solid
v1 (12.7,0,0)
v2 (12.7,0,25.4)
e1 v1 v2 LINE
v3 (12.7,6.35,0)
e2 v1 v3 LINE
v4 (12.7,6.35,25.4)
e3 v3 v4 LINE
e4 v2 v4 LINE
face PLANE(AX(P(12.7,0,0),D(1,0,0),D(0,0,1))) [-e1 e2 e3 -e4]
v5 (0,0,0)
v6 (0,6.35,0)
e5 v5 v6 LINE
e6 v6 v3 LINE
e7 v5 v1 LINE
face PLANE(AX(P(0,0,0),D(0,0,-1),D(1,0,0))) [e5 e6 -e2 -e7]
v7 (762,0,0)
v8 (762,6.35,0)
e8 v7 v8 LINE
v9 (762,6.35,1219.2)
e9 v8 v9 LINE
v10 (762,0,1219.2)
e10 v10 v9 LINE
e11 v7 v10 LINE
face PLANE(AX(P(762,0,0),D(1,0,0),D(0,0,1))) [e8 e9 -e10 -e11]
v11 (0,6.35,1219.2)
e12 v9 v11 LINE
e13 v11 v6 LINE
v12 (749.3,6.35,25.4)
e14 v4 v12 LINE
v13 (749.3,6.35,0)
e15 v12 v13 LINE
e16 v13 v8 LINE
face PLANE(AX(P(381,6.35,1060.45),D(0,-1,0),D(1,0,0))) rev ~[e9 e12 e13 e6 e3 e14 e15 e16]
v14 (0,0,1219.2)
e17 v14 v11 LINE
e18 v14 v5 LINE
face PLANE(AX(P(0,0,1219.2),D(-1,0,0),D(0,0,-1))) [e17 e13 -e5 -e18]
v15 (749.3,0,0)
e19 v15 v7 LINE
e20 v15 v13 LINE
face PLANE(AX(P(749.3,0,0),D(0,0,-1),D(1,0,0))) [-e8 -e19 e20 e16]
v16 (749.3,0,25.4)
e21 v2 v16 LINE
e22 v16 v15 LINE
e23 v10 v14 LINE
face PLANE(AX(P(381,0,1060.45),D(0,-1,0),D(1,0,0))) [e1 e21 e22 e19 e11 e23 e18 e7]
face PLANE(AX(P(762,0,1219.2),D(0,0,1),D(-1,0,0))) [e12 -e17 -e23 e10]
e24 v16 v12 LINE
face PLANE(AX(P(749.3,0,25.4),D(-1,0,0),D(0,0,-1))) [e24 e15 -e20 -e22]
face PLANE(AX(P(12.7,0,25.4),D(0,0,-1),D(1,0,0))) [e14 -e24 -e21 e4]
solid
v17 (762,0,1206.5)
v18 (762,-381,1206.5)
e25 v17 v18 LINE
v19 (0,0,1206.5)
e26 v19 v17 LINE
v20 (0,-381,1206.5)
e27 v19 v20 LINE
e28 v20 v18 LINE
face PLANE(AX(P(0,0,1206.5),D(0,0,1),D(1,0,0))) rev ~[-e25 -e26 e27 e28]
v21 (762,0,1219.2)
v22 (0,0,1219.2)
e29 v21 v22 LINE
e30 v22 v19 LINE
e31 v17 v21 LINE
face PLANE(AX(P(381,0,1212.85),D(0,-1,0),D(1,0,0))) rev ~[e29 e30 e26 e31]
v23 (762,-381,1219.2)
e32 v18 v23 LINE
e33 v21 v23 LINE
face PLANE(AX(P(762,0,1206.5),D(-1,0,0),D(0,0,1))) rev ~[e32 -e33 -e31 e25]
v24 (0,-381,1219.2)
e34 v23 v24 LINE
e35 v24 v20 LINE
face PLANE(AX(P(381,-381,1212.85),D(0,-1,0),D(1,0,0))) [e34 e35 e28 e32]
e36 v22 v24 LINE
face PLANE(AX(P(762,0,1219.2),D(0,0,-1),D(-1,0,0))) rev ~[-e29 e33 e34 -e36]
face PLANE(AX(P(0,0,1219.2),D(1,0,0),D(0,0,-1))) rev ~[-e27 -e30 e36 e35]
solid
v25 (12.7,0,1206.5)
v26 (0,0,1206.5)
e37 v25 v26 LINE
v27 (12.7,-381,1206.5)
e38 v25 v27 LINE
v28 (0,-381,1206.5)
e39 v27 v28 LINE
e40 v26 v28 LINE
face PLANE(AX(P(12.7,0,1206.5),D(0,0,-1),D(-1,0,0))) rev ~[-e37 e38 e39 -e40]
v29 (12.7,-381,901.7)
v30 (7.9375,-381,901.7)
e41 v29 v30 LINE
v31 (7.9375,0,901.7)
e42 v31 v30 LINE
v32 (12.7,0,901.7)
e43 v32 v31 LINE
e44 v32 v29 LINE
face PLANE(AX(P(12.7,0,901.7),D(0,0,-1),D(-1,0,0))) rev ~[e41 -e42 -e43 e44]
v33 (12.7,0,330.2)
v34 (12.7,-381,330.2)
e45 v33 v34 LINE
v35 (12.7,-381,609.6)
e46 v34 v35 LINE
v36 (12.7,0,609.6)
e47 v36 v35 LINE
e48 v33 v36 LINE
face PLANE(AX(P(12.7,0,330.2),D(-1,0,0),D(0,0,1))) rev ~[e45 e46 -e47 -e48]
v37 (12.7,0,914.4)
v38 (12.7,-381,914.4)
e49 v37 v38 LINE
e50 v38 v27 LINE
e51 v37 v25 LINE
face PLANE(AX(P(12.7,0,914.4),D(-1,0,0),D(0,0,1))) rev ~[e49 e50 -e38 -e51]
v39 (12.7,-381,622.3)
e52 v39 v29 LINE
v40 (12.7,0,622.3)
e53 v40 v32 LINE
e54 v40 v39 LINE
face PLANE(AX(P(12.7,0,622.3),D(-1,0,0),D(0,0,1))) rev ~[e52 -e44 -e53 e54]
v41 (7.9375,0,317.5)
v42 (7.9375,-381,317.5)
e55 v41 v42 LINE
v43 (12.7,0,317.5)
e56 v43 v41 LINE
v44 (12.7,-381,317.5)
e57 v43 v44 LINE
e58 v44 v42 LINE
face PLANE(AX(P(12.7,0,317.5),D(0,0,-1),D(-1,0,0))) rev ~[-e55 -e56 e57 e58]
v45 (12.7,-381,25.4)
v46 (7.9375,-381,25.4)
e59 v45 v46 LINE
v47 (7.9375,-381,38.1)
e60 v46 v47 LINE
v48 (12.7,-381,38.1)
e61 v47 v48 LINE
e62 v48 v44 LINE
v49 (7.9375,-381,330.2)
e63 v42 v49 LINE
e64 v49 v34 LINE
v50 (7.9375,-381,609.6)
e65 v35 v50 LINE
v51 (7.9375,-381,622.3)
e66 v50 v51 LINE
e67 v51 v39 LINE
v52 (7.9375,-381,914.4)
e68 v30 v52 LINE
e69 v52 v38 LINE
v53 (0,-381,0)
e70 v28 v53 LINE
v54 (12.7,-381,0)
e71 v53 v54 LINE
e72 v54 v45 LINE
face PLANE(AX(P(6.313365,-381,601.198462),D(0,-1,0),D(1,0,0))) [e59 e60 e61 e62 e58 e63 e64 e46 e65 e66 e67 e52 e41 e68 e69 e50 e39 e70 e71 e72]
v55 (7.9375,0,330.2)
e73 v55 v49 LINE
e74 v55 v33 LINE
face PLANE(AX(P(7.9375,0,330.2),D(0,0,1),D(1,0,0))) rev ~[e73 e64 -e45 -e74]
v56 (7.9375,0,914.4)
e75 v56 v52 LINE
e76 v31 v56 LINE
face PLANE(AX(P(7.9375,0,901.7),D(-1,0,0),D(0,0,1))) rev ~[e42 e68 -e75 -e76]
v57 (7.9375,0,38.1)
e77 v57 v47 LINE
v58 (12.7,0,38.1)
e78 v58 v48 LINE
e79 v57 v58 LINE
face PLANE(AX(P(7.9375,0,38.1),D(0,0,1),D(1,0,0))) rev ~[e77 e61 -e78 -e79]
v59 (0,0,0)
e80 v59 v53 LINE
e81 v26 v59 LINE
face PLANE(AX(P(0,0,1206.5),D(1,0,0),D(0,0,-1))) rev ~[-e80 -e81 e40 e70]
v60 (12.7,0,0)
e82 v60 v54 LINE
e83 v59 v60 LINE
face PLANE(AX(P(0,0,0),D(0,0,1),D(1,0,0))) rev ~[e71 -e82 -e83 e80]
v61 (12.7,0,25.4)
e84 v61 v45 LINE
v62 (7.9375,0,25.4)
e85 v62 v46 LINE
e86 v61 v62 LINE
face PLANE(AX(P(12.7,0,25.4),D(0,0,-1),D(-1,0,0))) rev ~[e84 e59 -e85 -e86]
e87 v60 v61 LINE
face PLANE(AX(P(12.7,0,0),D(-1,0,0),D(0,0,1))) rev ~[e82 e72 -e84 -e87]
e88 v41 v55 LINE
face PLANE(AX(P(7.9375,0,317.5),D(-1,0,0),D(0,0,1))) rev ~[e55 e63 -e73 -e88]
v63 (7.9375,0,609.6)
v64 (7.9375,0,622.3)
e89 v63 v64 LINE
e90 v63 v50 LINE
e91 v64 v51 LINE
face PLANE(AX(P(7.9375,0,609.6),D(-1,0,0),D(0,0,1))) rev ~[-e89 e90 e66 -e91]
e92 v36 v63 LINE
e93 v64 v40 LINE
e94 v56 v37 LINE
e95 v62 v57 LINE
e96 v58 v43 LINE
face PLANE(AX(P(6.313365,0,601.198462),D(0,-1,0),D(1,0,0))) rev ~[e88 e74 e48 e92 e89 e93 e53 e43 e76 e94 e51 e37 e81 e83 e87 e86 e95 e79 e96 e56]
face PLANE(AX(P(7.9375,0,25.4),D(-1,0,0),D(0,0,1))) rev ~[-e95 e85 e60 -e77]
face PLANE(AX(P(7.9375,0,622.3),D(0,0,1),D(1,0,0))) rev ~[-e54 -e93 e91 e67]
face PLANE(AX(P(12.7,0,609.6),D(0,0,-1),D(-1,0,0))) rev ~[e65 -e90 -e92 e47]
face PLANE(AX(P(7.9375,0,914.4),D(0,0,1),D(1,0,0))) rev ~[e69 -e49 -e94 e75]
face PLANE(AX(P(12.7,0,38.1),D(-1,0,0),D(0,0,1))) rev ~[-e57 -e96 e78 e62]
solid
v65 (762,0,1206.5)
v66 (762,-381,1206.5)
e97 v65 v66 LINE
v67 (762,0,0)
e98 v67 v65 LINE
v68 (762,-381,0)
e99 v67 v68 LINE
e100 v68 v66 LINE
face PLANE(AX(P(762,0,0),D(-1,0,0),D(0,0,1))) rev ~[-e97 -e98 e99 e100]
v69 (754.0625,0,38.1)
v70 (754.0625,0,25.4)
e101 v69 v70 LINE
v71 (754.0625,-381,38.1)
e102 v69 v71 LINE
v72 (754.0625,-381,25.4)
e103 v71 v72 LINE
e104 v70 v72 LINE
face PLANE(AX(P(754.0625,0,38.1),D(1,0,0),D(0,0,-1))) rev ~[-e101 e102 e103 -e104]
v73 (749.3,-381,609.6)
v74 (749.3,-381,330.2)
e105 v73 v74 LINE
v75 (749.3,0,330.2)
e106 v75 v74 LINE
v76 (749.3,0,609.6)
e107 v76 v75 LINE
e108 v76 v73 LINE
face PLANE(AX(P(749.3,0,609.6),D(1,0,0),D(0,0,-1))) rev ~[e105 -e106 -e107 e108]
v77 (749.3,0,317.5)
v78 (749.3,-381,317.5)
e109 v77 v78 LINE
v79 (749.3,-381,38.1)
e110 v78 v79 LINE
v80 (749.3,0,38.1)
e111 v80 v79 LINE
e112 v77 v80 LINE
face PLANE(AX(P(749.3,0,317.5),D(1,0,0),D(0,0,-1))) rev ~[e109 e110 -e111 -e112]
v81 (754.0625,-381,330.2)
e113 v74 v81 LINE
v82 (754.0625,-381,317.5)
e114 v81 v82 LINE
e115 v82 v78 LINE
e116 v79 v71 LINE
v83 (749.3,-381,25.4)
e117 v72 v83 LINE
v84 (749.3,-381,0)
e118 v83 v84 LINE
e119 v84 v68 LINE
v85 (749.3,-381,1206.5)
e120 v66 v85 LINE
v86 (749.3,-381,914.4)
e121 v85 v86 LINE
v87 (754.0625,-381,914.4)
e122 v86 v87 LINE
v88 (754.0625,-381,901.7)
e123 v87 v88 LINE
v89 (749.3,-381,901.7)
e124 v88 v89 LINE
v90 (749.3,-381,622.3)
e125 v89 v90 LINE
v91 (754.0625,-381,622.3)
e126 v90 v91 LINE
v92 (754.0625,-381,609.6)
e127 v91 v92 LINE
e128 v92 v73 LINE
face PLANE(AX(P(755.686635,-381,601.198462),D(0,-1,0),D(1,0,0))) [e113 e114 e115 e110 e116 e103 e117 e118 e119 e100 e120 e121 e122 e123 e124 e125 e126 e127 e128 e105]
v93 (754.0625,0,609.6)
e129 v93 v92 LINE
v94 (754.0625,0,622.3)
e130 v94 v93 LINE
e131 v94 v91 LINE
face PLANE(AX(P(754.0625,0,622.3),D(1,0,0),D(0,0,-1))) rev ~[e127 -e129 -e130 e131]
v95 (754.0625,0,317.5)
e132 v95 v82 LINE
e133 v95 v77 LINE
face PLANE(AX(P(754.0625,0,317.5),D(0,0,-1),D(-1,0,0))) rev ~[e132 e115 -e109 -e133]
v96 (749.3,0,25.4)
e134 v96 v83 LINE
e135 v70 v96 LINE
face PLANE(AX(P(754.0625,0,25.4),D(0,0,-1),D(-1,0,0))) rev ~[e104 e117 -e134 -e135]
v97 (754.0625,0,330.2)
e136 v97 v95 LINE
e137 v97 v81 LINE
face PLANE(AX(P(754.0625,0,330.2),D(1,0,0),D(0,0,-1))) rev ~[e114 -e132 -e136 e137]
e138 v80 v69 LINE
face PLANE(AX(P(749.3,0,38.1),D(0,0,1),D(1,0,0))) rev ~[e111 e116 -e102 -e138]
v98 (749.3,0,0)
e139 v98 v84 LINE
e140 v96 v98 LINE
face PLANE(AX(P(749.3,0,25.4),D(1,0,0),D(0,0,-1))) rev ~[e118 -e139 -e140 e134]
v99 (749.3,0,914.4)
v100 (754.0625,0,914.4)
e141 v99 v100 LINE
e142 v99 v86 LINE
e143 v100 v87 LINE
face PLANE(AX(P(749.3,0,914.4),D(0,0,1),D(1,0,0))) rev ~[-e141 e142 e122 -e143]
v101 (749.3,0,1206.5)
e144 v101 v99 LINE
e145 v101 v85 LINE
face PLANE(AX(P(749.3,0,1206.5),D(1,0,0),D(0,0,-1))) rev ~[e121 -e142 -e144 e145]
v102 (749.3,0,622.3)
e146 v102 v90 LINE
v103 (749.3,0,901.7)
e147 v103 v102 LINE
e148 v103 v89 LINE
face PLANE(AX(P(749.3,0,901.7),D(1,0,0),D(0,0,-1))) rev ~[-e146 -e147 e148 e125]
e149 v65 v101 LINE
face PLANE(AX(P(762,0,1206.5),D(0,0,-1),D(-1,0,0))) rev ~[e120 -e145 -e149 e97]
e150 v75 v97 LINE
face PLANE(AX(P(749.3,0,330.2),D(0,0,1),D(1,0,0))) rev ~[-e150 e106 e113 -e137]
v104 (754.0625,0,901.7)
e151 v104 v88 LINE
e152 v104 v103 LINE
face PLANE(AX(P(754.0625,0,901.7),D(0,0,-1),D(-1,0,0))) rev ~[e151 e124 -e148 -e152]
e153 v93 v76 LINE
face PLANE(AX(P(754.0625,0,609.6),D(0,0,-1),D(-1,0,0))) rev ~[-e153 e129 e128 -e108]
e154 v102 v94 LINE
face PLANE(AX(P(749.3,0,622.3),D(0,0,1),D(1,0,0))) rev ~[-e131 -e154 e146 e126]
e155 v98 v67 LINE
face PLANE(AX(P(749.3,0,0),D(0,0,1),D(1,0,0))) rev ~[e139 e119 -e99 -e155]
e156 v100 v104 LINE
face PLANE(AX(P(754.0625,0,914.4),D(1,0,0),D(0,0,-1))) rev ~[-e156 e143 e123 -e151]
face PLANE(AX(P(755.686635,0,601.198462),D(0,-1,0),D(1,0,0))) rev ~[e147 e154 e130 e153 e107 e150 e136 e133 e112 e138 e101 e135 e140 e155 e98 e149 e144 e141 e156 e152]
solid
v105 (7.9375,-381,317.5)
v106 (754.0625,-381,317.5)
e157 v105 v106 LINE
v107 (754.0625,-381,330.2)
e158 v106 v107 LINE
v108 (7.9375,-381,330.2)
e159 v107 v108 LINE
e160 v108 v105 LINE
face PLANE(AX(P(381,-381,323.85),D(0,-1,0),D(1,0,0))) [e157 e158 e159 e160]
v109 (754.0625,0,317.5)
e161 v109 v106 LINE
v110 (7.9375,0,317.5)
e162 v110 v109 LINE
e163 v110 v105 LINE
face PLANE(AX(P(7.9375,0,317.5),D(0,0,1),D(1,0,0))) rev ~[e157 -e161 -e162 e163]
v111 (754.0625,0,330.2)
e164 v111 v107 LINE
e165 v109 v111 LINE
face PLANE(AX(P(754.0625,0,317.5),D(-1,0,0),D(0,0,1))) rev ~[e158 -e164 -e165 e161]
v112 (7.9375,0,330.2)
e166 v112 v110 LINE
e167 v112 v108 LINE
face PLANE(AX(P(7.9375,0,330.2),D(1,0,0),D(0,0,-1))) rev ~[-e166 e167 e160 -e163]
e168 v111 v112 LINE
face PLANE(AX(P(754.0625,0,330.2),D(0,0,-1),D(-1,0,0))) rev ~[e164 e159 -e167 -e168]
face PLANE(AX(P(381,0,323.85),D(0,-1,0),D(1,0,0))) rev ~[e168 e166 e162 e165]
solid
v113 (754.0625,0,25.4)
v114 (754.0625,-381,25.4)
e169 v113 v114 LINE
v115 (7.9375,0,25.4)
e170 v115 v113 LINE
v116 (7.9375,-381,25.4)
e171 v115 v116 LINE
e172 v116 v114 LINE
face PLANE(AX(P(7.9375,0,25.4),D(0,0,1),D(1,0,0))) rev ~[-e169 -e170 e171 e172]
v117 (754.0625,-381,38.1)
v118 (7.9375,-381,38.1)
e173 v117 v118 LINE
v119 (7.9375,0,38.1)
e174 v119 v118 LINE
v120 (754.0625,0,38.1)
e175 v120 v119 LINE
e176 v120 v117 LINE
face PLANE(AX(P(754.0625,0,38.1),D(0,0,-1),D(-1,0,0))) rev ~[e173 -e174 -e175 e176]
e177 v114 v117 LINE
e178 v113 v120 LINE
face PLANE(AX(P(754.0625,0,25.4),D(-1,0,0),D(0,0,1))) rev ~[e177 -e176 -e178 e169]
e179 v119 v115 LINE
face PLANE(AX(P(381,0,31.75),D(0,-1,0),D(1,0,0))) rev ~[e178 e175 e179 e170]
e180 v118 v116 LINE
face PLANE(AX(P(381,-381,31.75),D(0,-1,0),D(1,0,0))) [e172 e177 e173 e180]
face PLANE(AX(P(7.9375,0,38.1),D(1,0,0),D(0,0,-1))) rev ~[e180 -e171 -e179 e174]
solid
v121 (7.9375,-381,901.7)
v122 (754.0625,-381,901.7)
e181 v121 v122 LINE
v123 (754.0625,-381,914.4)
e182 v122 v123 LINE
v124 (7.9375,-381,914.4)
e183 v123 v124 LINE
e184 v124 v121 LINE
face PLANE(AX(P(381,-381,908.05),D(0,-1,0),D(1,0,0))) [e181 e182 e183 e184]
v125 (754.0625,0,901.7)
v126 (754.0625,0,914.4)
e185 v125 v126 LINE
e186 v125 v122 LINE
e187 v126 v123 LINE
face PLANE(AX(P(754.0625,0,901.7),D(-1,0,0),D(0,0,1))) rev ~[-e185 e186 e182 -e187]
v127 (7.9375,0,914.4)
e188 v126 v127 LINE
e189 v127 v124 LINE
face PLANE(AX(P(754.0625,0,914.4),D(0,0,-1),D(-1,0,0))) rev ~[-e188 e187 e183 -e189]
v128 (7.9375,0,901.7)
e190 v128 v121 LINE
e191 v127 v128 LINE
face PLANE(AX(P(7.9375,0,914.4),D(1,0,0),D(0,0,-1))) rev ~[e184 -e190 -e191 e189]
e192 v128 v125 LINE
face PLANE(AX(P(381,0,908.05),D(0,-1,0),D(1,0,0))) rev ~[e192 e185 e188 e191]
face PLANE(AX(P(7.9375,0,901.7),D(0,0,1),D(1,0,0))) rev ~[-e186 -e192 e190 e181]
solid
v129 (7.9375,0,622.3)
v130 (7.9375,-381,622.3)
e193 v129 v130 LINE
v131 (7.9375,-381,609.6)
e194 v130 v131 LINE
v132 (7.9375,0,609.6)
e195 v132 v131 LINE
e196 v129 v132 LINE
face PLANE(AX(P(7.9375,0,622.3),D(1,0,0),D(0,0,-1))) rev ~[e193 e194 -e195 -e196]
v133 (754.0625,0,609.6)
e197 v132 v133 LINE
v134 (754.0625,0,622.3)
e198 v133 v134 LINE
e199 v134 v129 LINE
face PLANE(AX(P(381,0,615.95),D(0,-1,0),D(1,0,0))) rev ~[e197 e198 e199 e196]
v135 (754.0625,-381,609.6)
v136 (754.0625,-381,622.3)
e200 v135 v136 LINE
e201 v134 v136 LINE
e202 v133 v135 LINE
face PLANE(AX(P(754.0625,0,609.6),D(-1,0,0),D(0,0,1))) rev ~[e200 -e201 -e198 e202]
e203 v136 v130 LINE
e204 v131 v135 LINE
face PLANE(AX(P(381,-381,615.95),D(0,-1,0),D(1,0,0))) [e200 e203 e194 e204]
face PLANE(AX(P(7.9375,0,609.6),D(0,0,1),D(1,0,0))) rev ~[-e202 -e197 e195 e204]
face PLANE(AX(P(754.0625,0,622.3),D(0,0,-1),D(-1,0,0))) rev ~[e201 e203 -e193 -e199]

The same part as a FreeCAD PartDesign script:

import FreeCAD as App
import Part
import Sketcher
Q = App.Units.Quantity


def add_polygon(sketch, points):
    """Adds a closed chain of lines whose ends are joined by coincident constraints."""
    first, n = sketch.GeometryCount, len(points)
    for a, b in zip(points, points[1:] + points[:1]):
        sketch.addGeometry(Part.LineSegment(App.Vector(*a, 0), App.Vector(*b, 0)), False)
    for i in range(n):
        sketch.addConstraint(Sketcher.Constraint("Coincident", first + i, 2, first + (i + 1) % n, 1))

doc = App.newDocument("Part")
body = doc.addObject("PartDesign::Body", "Body")
body.AllowCompound = True

# Sketch on XZ plane
sketch1 = body.newObject("Sketcher::SketchObject", "Sketch")
sketch1.AttachmentSupport = (doc.getObject("XZ_Plane"), [""])
sketch1.MapMode = "FlatFace"
add_polygon(sketch1, [(754.1, 25.4), (749.3, 25.4), (749.3, 0), (762, 0), (762, 1206.5), (749.3, 1206.5), (749.3, 914.4), (754.1, 914.4), (754.1, 901.7), (749.3, 901.7), (749.3, 622.3), (754.1, 622.3), (754.1, 609.6), (749.3, 609.6), (749.3, 330.2), (754.1, 330.2), (754.1, 317.5), (749.3, 317.5), (749.3, 38.1), (754.1, 38.1)])  # lines 0-19
add_polygon(sketch1, [(0, 1206.5), (0, 0), (12.7, 0), (12.7, 25.4), (7.9, 25.4), (7.9, 38.1), (12.7, 38.1), (12.7, 317.5), (7.9, 317.5), (7.9, 330.2), (12.7, 330.2), (12.7, 609.6), (7.9, 609.6), (7.9, 622.3), (12.7, 622.3), (12.7, 901.7), (7.9, 901.7), (7.9, 914.4), (12.7, 914.4), (12.7, 1206.5)])  # lines 20-39
sketch1.addConstraint([
    Sketcher.Constraint("Horizontal", 0),
    Sketcher.Constraint("Vertical", 1),
    Sketcher.Constraint("Horizontal", 2),
    Sketcher.Constraint("Vertical", 3),
    Sketcher.Constraint("Horizontal", 4),
    Sketcher.Constraint("Vertical", 5),
    Sketcher.Constraint("Horizontal", 6),
    Sketcher.Constraint("Vertical", 7),
    Sketcher.Constraint("Horizontal", 8),
    Sketcher.Constraint("Vertical", 9),
    Sketcher.Constraint("Horizontal", 10),
    Sketcher.Constraint("Vertical", 11),
    Sketcher.Constraint("Horizontal", 12),
    Sketcher.Constraint("Vertical", 13),
    Sketcher.Constraint("Horizontal", 14),
    Sketcher.Constraint("Vertical", 15),
    Sketcher.Constraint("Horizontal", 16),
    Sketcher.Constraint("Vertical", 17),
    Sketcher.Constraint("Horizontal", 18),
    Sketcher.Constraint("Vertical", 19),
    Sketcher.Constraint("Vertical", 20),
    Sketcher.Constraint("Horizontal", 21),
    Sketcher.Constraint("Vertical", 22),
    Sketcher.Constraint("Horizontal", 23),
    Sketcher.Constraint("Vertical", 24),
    Sketcher.Constraint("Horizontal", 25),
    Sketcher.Constraint("Vertical", 26),
    Sketcher.Constraint("Horizontal", 27),
    Sketcher.Constraint("Vertical", 28),
    Sketcher.Constraint("Horizontal", 29),
    Sketcher.Constraint("Vertical", 30),
    Sketcher.Constraint("Horizontal", 31),
    Sketcher.Constraint("Vertical", 32),
    Sketcher.Constraint("Horizontal", 33),
    Sketcher.Constraint("Vertical", 34),
    Sketcher.Constraint("Horizontal", 35),
    Sketcher.Constraint("Vertical", 36),
    Sketcher.Constraint("Horizontal", 37),
    Sketcher.Constraint("Vertical", 38),
    Sketcher.Constraint("Horizontal", 39),
    Sketcher.Constraint("Coincident", 20, 2, -1, 1),
    Sketcher.Constraint("PointOnObject", 1, 2, -1),
    Sketcher.Constraint("Horizontal", 19, 2, 22, 2),
    Sketcher.Constraint("Horizontal", 18, 2, 24, 2),
    Sketcher.Constraint("Horizontal", 16, 2, 26, 2),
    Sketcher.Constraint("Horizontal", 14, 2, 28, 2),
    Sketcher.Constraint("Horizontal", 12, 2, 30, 2),
    Sketcher.Constraint("Horizontal", 10, 2, 32, 2),
    Sketcher.Constraint("Horizontal", 8, 2, 34, 2),
    Sketcher.Constraint("Horizontal", 6, 2, 36, 2),
    Sketcher.Constraint("Horizontal", 4, 2, 38, 2),
    Sketcher.Constraint("Vertical", 1, 2, 4, 2),
    Sketcher.Constraint("Vertical", 5, 2, 8, 2),
    Sketcher.Constraint("Vertical", 7, 2, 10, 2),
    Sketcher.Constraint("Vertical", 9, 2, 12, 2),
    Sketcher.Constraint("Vertical", 11, 2, 14, 2),
    Sketcher.Constraint("Vertical", 13, 2, 16, 2),
    Sketcher.Constraint("Vertical", 15, 2, 18, 2),
    Sketcher.Constraint("Vertical", 22, 2, 25, 2),
    Sketcher.Constraint("Vertical", 24, 2, 27, 2),
    Sketcher.Constraint("Vertical", 26, 2, 29, 2),
    Sketcher.Constraint("Vertical", 28, 2, 31, 2),
    Sketcher.Constraint("Vertical", 30, 2, 33, 2),
    Sketcher.Constraint("Vertical", 32, 2, 35, 2),
    Sketcher.Constraint("Vertical", 34, 2, 37, 2),
    Sketcher.Constraint("Equal", 4, 21),
    Sketcher.Constraint("Equal", 18, 23),
    Sketcher.Constraint("Equal", 39, 7),
    Sketcher.Constraint("Equal", 7, 11),
    Sketcher.Constraint("Equal", 9, 13),
    Sketcher.Constraint("Equal", 11, 15),
    Sketcher.Constraint("Equal", 13, 17),
    Sketcher.Constraint("Equal", 15, 19),
    Sketcher.Constraint("DistanceY", 1, 2, 1, 1, Q("1 in")),
    Sketcher.Constraint("DistanceY", 9, 2, 9, 1, Q("11 in")),
    Sketcher.Constraint("DistanceX", 2, 1, 2, 2, Q("0.5 in")),
    Sketcher.Constraint("DistanceY", 3, 1, 3, 2, Q("47.5 in")),
    Sketcher.Constraint("DistanceX", -1, 1, 2, 2, Q("30 in")),
    Sketcher.Constraint("DistanceX", 0, 2, 0, 1, Q("0.1875 in")),
])
pad1 = body.newObject("PartDesign::Pad", "Pad")
pad1.Profile = sketch1
pad1.Length = Q("15 in")
body2 = doc.addObject("PartDesign::Body", "Body001")
body2.AllowCompound = True

# Sketch on XZ plane
sketch2 = body2.newObject("Sketcher::SketchObject", "Sketch001")
sketch2.AttachmentSupport = (doc.getObject("XZ_Plane001"), [""])
sketch2.MapMode = "FlatFace"
add_polygon(sketch2, [(8, 25), (754, 25), (754, 38), (8, 38)])  # lines 0-3
add_polygon(sketch2, [(8, 318), (754, 318), (754, 330), (8, 330)])  # lines 4-7
add_polygon(sketch2, [(8, 622), (8, 610), (754, 610), (754, 622)])  # lines 8-11
add_polygon(sketch2, [(8, 914), (8, 902), (754, 902), (754, 914)])  # lines 12-15
add_polygon(sketch2, [(0, 1219), (0, 1206), (762, 1206), (762, 1219)])  # lines 16-19
sketch2.addConstraint([
    Sketcher.Constraint("Horizontal", 0),
    Sketcher.Constraint("Vertical", 1),
    Sketcher.Constraint("Horizontal", 2),
    Sketcher.Constraint("Vertical", 3),
    Sketcher.Constraint("Horizontal", 4),
    Sketcher.Constraint("Vertical", 5),
    Sketcher.Constraint("Horizontal", 6),
    Sketcher.Constraint("Vertical", 7),
    Sketcher.Constraint("Vertical", 8),
    Sketcher.Constraint("Horizontal", 9),
    Sketcher.Constraint("Vertical", 10),
    Sketcher.Constraint("Horizontal", 11),
    Sketcher.Constraint("Vertical", 12),
    Sketcher.Constraint("Horizontal", 13),
    Sketcher.Constraint("Vertical", 14),
    Sketcher.Constraint("Horizontal", 15),
    Sketcher.Constraint("Vertical", 16),
    Sketcher.Constraint("Horizontal", 17),
    Sketcher.Constraint("Vertical", 18),
    Sketcher.Constraint("Horizontal", 19),
    Sketcher.Constraint("PointOnObject", 16, 2, -2),
    Sketcher.Constraint("Vertical", 1, 2, 4, 2),
    Sketcher.Constraint("Vertical", 3, 2, 6, 2),
    Sketcher.Constraint("Vertical", 7, 2, 8, 2),
    Sketcher.Constraint("Vertical", 5, 2, 9, 2),
    Sketcher.Constraint("Vertical", 11, 2, 12, 2),
    Sketcher.Constraint("Vertical", 10, 2, 13, 2),
    Sketcher.Constraint("Equal", 3, 5),
    Sketcher.Constraint("Equal", 7, 8),
    Sketcher.Constraint("Equal", 10, 12),
    Sketcher.Constraint("Equal", 14, 16),
    Sketcher.Constraint("DistanceX", 17, 1, 17, 2, Q("30 in")),
    Sketcher.Constraint("DistanceY", 1, 1, 1, 2, Q("0.5 in")),
    Sketcher.Constraint("DistanceY", -1, 1, 0, 2, Q("1 in")),
    Sketcher.Constraint("DistanceY", -1, 1, 5, 2, Q("13 in")),
    Sketcher.Constraint("DistanceY", -1, 1, 8, 2, Q("24 in")),
    Sketcher.Constraint("DistanceY", -1, 1, 14, 2, Q("36 in")),
    Sketcher.Constraint("DistanceY", -1, 1, 18, 2, Q("48 in")),
    Sketcher.Constraint("DistanceX", 0, 1, 0, 2, Q("29.375 in")),
    Sketcher.Constraint("DistanceX", -1, 1, 0, 2, Q("29.6875 in")),
])
pad2 = body2.newObject("PartDesign::Pad", "Pad001")
pad2.Profile = sketch2
pad2.Length = Q("15 in")
body3 = doc.addObject("PartDesign::Body", "Body002")

# Sketch on XZ plane
sketch3 = body3.newObject("Sketcher::SketchObject", "Sketch002")
sketch3.AttachmentSupport = (doc.getObject("XZ_Plane002"), [""])
sketch3.MapMode = "FlatFace"
add_polygon(sketch3, [(749, 25), (749, 0), (762, 0), (762, 1219), (0, 1219), (0, 0), (13, 0), (13, 25)])  # lines 0-7
sketch3.addConstraint([
    Sketcher.Constraint("Vertical", 0),
    Sketcher.Constraint("Horizontal", 1),
    Sketcher.Constraint("Vertical", 2),
    Sketcher.Constraint("Horizontal", 3),
    Sketcher.Constraint("Vertical", 4),
    Sketcher.Constraint("Horizontal", 5),
    Sketcher.Constraint("Vertical", 6),
    Sketcher.Constraint("Horizontal", 7),
    Sketcher.Constraint("Coincident", 4, 2, -1, 1),
    Sketcher.Constraint("PointOnObject", 0, 2, -1),
    Sketcher.Constraint("Equal", 1, 5),
    Sketcher.Constraint("DistanceX", 3, 2, 3, 1, Q("30 in")),
    Sketcher.Constraint("DistanceX", 7, 1, 7, 2, Q("29 in")),
    Sketcher.Constraint("DistanceY", 0, 2, 0, 1, Q("1 in")),
    Sketcher.Constraint("DistanceY", 2, 1, 2, 2, Q("48 in")),
])
pad3 = body3.newObject("PartDesign::Pad", "Pad002")
pad3.Profile = sketch3
pad3.Length = Q("0.25 in")
pad3.Reversed = True

doc.recompute()
